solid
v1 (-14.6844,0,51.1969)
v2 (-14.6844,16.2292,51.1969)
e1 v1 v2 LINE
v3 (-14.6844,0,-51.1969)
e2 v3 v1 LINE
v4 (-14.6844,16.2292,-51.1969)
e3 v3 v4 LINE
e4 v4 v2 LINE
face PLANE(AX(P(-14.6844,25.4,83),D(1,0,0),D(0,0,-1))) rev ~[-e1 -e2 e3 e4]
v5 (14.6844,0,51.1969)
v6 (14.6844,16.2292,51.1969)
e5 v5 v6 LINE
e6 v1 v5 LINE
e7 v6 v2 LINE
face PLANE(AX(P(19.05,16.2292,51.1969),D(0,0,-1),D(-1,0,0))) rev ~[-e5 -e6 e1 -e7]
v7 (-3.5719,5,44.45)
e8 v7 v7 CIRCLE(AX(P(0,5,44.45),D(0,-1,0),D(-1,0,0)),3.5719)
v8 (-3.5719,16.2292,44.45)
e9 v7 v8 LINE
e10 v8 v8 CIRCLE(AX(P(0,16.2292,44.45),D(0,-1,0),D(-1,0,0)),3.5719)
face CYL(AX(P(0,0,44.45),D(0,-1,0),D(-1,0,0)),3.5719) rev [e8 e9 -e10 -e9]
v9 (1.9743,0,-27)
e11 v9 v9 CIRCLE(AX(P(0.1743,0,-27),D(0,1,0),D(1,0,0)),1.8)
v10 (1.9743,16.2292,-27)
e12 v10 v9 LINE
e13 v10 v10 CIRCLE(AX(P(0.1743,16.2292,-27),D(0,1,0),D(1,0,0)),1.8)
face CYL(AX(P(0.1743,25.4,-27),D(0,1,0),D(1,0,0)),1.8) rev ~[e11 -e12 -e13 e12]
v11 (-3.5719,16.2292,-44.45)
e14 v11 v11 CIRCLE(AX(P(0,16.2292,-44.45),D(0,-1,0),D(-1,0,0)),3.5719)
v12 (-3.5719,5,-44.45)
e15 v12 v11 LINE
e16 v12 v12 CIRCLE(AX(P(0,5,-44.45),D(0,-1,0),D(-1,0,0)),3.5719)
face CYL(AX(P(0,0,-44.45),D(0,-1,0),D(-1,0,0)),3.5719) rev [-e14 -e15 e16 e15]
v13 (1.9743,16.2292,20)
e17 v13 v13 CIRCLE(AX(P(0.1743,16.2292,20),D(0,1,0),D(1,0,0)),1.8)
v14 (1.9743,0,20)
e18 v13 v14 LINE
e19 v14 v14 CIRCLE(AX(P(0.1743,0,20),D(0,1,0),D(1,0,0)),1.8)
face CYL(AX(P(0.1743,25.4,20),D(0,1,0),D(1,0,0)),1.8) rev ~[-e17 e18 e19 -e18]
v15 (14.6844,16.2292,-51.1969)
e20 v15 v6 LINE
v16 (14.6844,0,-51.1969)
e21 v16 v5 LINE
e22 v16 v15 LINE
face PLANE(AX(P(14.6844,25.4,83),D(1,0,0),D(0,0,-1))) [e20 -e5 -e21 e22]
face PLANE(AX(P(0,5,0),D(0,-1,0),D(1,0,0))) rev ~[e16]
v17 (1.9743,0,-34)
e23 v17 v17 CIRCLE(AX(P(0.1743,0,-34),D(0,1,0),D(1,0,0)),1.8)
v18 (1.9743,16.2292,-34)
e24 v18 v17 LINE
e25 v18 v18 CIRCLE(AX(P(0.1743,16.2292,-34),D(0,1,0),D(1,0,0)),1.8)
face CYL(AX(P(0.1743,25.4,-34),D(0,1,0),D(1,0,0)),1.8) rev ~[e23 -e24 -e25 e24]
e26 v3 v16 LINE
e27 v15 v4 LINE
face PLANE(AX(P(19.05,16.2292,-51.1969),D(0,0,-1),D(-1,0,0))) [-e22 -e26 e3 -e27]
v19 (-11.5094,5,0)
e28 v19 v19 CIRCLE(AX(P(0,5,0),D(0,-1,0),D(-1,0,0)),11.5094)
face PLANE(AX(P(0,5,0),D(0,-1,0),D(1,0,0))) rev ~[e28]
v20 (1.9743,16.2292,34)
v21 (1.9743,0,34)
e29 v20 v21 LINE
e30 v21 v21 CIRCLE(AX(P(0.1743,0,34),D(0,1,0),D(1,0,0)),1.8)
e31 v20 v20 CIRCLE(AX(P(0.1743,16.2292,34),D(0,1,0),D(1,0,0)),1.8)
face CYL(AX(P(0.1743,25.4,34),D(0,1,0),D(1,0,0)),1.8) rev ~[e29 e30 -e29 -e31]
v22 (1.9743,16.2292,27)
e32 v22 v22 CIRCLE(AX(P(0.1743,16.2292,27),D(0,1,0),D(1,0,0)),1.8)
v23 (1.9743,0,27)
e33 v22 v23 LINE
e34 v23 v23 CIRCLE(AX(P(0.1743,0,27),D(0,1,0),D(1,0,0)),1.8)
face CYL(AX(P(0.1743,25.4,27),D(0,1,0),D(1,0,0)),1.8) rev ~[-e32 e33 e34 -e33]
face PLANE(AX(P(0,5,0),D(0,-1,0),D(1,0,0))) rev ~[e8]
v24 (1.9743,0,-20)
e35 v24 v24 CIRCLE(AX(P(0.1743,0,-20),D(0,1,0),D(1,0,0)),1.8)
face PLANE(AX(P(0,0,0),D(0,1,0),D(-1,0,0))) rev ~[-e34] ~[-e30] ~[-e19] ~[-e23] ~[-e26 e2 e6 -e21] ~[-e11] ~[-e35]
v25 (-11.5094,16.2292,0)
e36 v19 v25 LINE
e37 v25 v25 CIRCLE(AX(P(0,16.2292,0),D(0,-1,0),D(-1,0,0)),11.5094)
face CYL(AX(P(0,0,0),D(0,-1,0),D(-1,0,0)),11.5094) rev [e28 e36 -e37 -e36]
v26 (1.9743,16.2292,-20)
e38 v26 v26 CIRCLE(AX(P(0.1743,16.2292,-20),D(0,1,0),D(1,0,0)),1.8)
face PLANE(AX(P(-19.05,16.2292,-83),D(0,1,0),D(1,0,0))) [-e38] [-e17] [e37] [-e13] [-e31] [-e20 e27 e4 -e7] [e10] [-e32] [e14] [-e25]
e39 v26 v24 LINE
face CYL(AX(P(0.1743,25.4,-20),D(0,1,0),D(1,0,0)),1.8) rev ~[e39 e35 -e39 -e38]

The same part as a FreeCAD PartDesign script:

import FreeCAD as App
import Part
import Sketcher
from FreeCAD import Vector
Q = App.Units.Quantity


def add_polygon(sketch, points):
    """Adds a closed chain of lines whose ends are joined by coincident constraints."""
    first, n = sketch.GeometryCount, len(points)
    for a, b in zip(points, points[1:] + points[:1]):
        sketch.addGeometry(Part.LineSegment(App.Vector(*a, 0), App.Vector(*b, 0)), False)
    for i in range(n):
        sketch.addConstraint(Sketcher.Constraint("Coincident", first + i, 2, first + (i + 1) % n, 1))

doc = App.newDocument("Part")
body = doc.addObject("PartDesign::Body", "Body")

sketch1 = doc.addObject("Sketcher::SketchObject", "Sketch")
body.addObject(sketch1)
sketch1.AttachmentSupport = (doc.XZ_Plane, [""])
sketch1.MapMode = "FlatFace"
add_polygon(sketch1, [(19.05, -83), (-19.05, -83), (-19.05, 83), (19.05, 83)])
sketch1.addGeometry(Part.Circle(Vector(0, -44.45, 0), Vector(0, 0, 1), 3.5719), False)
sketch1.addGeometry(Part.Circle(Vector(0, 0, 0), Vector(0, 0, 1), 11.5094), False)
sketch1.addGeometry(Part.Circle(Vector(0, 44.45, 0), Vector(0, 0, 1), 3.5719), False)
sketch1.addConstraint([
    Sketcher.Constraint("Horizontal", 0),
    Sketcher.Constraint("Vertical", 1),
    Sketcher.Constraint("Horizontal", 2),
    Sketcher.Constraint("Vertical", 3),
    Sketcher.Constraint("Coincident", 5, 3, -1, 1),
    Sketcher.Constraint("Equal", 4, 6),
    Sketcher.Constraint("Symmetric", 4, 3, 6, 3, -1, 1),
    Sketcher.Constraint("Symmetric", 0, 2, 2, 2, -1, 1),
    Sketcher.Constraint("PointOnObject", 4, 3, -2),
    Sketcher.Constraint("Diameter", 4, Q("0.281252 in")),
    Sketcher.Constraint("Diameter", 5, Q("0.906252 in")),
    Sketcher.Constraint("DistanceY", 4, 3, -1, 1, Q("1.75 in")),
    Sketcher.Constraint("DistanceX", 0, 2, 0, 1, Q("1.5 in")),
    Sketcher.Constraint("DistanceY", 1, 1, 1, 2, 166.0),
])
pad1 = doc.addObject("PartDesign::Pad", "Pad")
body.addObject(pad1)
pad1.Profile = sketch1
pad1.Length = Q("1 in")
pad1.Reversed = True

sketch2 = doc.addObject("Sketcher::SketchObject", "Sketch001")
body.addObject(sketch2)
sketch2.AttachmentSupport = (doc.XY_Plane, [""])
sketch2.MapMode = "FlatFace"
sketch2.AttachmentOffset = App.Placement(Vector(0, 0, -83), App.Rotation())
add_polygon(sketch2, [(19.05, 25.4), (19.05, 16.2292), (-19.05, 16.2292), (-19.05, 25.4)])
sketch2.addConstraint([
    Sketcher.Constraint("Vertical", 0),
    Sketcher.Constraint("Horizontal", 1),
    Sketcher.Constraint("Vertical", 2),
    Sketcher.Constraint("Horizontal", 3),
    Sketcher.Constraint("DistanceX", 1, 2, 1, 1, Q("1.5 in")),
    Sketcher.Constraint("DistanceY", -1, 1, 2, 2, Q("1 in")),
    Sketcher.Constraint("DistanceX", -1, 1, 0, 2, Q("0.75 in")),
    Sketcher.Constraint("DistanceY", 0, 2, 0, 1, 9.1708),
])
pocket1 = doc.addObject("PartDesign::Pocket", "Pocket")
body.addObject(pocket1)
pocket1.Profile = sketch2
pocket1.Type = "UpToFirst"
pocket1.Reversed = True

sketch3 = doc.addObject("Sketcher::SketchObject", "Sketch002")
body.addObject(sketch3)
sketch3.AttachmentSupport = (doc.XZ_Plane, [""])
sketch3.MapMode = "FlatFace"
sketch3.AttachmentOffset = App.Placement(Vector(0, 0, -16.2292), App.Rotation())
add_polygon(sketch3, [(-19.05, 83), (19.05, 83), (19.05, 51.1969), (-19.05, 51.1969)])
add_polygon(sketch3, [(-19.05, -51.1969), (19.05, -51.1969), (19.05, -83), (-19.05, -83)])
sketch3.addConstraint([
    Sketcher.Constraint("Horizontal", 0),
    Sketcher.Constraint("Vertical", 1),
    Sketcher.Constraint("Horizontal", 2),
    Sketcher.Constraint("Vertical", 3),
    Sketcher.Constraint("Horizontal", 4),
    Sketcher.Constraint("Vertical", 5),
    Sketcher.Constraint("Horizontal", 6),
    Sketcher.Constraint("Vertical", 7),
    Sketcher.Constraint("Symmetric", 2, 2, 4, 2, -1, 1),
    Sketcher.Constraint("Symmetric", 0, 2, 6, 2, -1, 1),
    Sketcher.Constraint("Vertical", 1, 2, 4, 2),
    Sketcher.Constraint("DistanceX", 0, 1, 0, 2, Q("1.5 in")),
    Sketcher.Constraint("DistanceY", 1, 2, 1, 1, Q("1.2521 in")),
    Sketcher.Constraint("DistanceY", -1, 1, 1, 2, Q("2.0156299 in")),
])
pocket2 = doc.addObject("PartDesign::Pocket", "Pocket001")
body.addObject(pocket2)
pocket2.Profile = sketch3
pocket2.Length = 16.2292
pocket2.Reversed = True

sketch4 = doc.addObject("Sketcher::SketchObject", "Sketch003")
body.addObject(sketch4)
sketch4.AttachmentSupport = (doc.XZ_Plane, [""])
sketch4.MapMode = "FlatFace"
sketch4.AttachmentOffset = App.Placement(Vector(0, 0, -1 * 25.4), App.Rotation())
sketch4.addGeometry(Part.Circle(Vector(0.1743, 34, 0), Vector(0, 0, 1), 1.8), False)
sketch4.addGeometry(Part.Circle(Vector(0.1743, 27, 0), Vector(0, 0, 1), 1.8), False)
sketch4.addGeometry(Part.Circle(Vector(0.1743, 20, 0), Vector(0, 0, 1), 1.8), False)
sketch4.addGeometry(Part.Circle(Vector(0.1743, -20, 0), Vector(0, 0, 1), 1.8), False)
sketch4.addGeometry(Part.Circle(Vector(0.1743, -27, 0), Vector(0, 0, 1), 1.8), False)
sketch4.addGeometry(Part.Circle(Vector(0.1743, -34, 0), Vector(0, 0, 1), 1.8), False)
add_polygon(sketch4, [(-14.6844, -83), (-19.05, -83), (-19.05, 83), (-14.6844, 83)])
add_polygon(sketch4, [(14.6844, 83), (19.05, 83), (19.05, -83), (14.6844, -83)])
sketch4.addConstraint([
    Sketcher.Constraint("Horizontal", 6),
    Sketcher.Constraint("Vertical", 7),
    Sketcher.Constraint("Horizontal", 8),
    Sketcher.Constraint("Vertical", 9),
    Sketcher.Constraint("Horizontal", 10),
    Sketcher.Constraint("Vertical", 11),
    Sketcher.Constraint("Horizontal", 12),
    Sketcher.Constraint("Vertical", 13),
    Sketcher.Constraint("Equal", 0, 1),
    Sketcher.Constraint("Equal", 1, 2),
    Sketcher.Constraint("Equal", 2, 3),
    Sketcher.Constraint("Equal", 3, 4),
    Sketcher.Constraint("Equal", 4, 5),
    Sketcher.Constraint("Symmetric", 6, 2, 10, 2, -1, 1),
    Sketcher.Constraint("Symmetric", 8, 2, 12, 2, -1, 1),
    Sketcher.Constraint("Symmetric", 2, 3, 3, 3, -1),
    Sketcher.Constraint("Symmetric", 1, 3, 4, 3, -1),
    Sketcher.Constraint("Symmetric", 0, 3, 5, 3, -1),
    Sketcher.Constraint("Horizontal", 8, 2, 10, 2),
    Sketcher.Constraint("Vertical", 0, 3, 1, 3),
    Sketcher.Constraint("Vertical", 1, 3, 2, 3),
    Sketcher.Constraint("Diameter", 0, 3.6),
    Sketcher.Constraint("DistanceY", -1, 1, 2, 3, Q("0.7874 in")),
    Sketcher.Constraint("DistanceY", 1, 3, 0, 3, Q("0.2756 in")),
    Sketcher.Constraint("DistanceY", 2, 3, 1, 3, Q("0.2756 in")),
    Sketcher.Constraint("DistanceX", 7, 2, 10, 2, Q("1.5 in")),
    Sketcher.Constraint("DistanceX", 6, 2, 6, 1, Q("0.171874 in")),
    Sketcher.Constraint("DistanceX", 8, 2, 0, 3, Q("0.585 in")),
    Sketcher.Constraint("DistanceY", 7, 1, 7, 2, 166.0),
])
pocket3 = doc.addObject("PartDesign::Pocket", "Pocket002")
body.addObject(pocket3)
pocket3.Profile = sketch4
pocket3.Length = Q("1 in")
pocket3.Reversed = True

sketch5 = doc.addObject("Sketcher::SketchObject", "Sketch004")
body.addObject(sketch5)
sketch5.AttachmentSupport = (doc.XZ_Plane, [""])
sketch5.MapMode = "FlatFace"
sketch5.addGeometry([
    Part.Circle(Vector(0, 44.45, 0), Vector(0, 0, 1), 3.5719),
    Part.Circle(Vector(0, -44.45, 0), Vector(0, 0, 1), 3.5719),
    Part.Circle(Vector(0, 0, 0), Vector(0, 0, 1), 11.5094),
], False)
sketch5.addConstraint([
    Sketcher.Constraint("Coincident", 2, 3, -1, 1),
    Sketcher.Constraint("Equal", 0, 1),
    Sketcher.Constraint("Symmetric", 0, 3, 1, 3, -1, 1),
    Sketcher.Constraint("PointOnObject", 0, 3, -2),
    Sketcher.Constraint("Diameter", 0, Q("0.281252 in")),
    Sketcher.Constraint("Diameter", 2, Q("0.906252 in")),
    Sketcher.Constraint("DistanceY", 1, 3, 0, 3, Q("3.5 in")),
])
pad2 = doc.addObject("PartDesign::Pad", "Pad001")
body.addObject(pad2)
pad2.Profile = sketch5
pad2.Length = 5
pad2.Reversed = True

doc.recompute()
